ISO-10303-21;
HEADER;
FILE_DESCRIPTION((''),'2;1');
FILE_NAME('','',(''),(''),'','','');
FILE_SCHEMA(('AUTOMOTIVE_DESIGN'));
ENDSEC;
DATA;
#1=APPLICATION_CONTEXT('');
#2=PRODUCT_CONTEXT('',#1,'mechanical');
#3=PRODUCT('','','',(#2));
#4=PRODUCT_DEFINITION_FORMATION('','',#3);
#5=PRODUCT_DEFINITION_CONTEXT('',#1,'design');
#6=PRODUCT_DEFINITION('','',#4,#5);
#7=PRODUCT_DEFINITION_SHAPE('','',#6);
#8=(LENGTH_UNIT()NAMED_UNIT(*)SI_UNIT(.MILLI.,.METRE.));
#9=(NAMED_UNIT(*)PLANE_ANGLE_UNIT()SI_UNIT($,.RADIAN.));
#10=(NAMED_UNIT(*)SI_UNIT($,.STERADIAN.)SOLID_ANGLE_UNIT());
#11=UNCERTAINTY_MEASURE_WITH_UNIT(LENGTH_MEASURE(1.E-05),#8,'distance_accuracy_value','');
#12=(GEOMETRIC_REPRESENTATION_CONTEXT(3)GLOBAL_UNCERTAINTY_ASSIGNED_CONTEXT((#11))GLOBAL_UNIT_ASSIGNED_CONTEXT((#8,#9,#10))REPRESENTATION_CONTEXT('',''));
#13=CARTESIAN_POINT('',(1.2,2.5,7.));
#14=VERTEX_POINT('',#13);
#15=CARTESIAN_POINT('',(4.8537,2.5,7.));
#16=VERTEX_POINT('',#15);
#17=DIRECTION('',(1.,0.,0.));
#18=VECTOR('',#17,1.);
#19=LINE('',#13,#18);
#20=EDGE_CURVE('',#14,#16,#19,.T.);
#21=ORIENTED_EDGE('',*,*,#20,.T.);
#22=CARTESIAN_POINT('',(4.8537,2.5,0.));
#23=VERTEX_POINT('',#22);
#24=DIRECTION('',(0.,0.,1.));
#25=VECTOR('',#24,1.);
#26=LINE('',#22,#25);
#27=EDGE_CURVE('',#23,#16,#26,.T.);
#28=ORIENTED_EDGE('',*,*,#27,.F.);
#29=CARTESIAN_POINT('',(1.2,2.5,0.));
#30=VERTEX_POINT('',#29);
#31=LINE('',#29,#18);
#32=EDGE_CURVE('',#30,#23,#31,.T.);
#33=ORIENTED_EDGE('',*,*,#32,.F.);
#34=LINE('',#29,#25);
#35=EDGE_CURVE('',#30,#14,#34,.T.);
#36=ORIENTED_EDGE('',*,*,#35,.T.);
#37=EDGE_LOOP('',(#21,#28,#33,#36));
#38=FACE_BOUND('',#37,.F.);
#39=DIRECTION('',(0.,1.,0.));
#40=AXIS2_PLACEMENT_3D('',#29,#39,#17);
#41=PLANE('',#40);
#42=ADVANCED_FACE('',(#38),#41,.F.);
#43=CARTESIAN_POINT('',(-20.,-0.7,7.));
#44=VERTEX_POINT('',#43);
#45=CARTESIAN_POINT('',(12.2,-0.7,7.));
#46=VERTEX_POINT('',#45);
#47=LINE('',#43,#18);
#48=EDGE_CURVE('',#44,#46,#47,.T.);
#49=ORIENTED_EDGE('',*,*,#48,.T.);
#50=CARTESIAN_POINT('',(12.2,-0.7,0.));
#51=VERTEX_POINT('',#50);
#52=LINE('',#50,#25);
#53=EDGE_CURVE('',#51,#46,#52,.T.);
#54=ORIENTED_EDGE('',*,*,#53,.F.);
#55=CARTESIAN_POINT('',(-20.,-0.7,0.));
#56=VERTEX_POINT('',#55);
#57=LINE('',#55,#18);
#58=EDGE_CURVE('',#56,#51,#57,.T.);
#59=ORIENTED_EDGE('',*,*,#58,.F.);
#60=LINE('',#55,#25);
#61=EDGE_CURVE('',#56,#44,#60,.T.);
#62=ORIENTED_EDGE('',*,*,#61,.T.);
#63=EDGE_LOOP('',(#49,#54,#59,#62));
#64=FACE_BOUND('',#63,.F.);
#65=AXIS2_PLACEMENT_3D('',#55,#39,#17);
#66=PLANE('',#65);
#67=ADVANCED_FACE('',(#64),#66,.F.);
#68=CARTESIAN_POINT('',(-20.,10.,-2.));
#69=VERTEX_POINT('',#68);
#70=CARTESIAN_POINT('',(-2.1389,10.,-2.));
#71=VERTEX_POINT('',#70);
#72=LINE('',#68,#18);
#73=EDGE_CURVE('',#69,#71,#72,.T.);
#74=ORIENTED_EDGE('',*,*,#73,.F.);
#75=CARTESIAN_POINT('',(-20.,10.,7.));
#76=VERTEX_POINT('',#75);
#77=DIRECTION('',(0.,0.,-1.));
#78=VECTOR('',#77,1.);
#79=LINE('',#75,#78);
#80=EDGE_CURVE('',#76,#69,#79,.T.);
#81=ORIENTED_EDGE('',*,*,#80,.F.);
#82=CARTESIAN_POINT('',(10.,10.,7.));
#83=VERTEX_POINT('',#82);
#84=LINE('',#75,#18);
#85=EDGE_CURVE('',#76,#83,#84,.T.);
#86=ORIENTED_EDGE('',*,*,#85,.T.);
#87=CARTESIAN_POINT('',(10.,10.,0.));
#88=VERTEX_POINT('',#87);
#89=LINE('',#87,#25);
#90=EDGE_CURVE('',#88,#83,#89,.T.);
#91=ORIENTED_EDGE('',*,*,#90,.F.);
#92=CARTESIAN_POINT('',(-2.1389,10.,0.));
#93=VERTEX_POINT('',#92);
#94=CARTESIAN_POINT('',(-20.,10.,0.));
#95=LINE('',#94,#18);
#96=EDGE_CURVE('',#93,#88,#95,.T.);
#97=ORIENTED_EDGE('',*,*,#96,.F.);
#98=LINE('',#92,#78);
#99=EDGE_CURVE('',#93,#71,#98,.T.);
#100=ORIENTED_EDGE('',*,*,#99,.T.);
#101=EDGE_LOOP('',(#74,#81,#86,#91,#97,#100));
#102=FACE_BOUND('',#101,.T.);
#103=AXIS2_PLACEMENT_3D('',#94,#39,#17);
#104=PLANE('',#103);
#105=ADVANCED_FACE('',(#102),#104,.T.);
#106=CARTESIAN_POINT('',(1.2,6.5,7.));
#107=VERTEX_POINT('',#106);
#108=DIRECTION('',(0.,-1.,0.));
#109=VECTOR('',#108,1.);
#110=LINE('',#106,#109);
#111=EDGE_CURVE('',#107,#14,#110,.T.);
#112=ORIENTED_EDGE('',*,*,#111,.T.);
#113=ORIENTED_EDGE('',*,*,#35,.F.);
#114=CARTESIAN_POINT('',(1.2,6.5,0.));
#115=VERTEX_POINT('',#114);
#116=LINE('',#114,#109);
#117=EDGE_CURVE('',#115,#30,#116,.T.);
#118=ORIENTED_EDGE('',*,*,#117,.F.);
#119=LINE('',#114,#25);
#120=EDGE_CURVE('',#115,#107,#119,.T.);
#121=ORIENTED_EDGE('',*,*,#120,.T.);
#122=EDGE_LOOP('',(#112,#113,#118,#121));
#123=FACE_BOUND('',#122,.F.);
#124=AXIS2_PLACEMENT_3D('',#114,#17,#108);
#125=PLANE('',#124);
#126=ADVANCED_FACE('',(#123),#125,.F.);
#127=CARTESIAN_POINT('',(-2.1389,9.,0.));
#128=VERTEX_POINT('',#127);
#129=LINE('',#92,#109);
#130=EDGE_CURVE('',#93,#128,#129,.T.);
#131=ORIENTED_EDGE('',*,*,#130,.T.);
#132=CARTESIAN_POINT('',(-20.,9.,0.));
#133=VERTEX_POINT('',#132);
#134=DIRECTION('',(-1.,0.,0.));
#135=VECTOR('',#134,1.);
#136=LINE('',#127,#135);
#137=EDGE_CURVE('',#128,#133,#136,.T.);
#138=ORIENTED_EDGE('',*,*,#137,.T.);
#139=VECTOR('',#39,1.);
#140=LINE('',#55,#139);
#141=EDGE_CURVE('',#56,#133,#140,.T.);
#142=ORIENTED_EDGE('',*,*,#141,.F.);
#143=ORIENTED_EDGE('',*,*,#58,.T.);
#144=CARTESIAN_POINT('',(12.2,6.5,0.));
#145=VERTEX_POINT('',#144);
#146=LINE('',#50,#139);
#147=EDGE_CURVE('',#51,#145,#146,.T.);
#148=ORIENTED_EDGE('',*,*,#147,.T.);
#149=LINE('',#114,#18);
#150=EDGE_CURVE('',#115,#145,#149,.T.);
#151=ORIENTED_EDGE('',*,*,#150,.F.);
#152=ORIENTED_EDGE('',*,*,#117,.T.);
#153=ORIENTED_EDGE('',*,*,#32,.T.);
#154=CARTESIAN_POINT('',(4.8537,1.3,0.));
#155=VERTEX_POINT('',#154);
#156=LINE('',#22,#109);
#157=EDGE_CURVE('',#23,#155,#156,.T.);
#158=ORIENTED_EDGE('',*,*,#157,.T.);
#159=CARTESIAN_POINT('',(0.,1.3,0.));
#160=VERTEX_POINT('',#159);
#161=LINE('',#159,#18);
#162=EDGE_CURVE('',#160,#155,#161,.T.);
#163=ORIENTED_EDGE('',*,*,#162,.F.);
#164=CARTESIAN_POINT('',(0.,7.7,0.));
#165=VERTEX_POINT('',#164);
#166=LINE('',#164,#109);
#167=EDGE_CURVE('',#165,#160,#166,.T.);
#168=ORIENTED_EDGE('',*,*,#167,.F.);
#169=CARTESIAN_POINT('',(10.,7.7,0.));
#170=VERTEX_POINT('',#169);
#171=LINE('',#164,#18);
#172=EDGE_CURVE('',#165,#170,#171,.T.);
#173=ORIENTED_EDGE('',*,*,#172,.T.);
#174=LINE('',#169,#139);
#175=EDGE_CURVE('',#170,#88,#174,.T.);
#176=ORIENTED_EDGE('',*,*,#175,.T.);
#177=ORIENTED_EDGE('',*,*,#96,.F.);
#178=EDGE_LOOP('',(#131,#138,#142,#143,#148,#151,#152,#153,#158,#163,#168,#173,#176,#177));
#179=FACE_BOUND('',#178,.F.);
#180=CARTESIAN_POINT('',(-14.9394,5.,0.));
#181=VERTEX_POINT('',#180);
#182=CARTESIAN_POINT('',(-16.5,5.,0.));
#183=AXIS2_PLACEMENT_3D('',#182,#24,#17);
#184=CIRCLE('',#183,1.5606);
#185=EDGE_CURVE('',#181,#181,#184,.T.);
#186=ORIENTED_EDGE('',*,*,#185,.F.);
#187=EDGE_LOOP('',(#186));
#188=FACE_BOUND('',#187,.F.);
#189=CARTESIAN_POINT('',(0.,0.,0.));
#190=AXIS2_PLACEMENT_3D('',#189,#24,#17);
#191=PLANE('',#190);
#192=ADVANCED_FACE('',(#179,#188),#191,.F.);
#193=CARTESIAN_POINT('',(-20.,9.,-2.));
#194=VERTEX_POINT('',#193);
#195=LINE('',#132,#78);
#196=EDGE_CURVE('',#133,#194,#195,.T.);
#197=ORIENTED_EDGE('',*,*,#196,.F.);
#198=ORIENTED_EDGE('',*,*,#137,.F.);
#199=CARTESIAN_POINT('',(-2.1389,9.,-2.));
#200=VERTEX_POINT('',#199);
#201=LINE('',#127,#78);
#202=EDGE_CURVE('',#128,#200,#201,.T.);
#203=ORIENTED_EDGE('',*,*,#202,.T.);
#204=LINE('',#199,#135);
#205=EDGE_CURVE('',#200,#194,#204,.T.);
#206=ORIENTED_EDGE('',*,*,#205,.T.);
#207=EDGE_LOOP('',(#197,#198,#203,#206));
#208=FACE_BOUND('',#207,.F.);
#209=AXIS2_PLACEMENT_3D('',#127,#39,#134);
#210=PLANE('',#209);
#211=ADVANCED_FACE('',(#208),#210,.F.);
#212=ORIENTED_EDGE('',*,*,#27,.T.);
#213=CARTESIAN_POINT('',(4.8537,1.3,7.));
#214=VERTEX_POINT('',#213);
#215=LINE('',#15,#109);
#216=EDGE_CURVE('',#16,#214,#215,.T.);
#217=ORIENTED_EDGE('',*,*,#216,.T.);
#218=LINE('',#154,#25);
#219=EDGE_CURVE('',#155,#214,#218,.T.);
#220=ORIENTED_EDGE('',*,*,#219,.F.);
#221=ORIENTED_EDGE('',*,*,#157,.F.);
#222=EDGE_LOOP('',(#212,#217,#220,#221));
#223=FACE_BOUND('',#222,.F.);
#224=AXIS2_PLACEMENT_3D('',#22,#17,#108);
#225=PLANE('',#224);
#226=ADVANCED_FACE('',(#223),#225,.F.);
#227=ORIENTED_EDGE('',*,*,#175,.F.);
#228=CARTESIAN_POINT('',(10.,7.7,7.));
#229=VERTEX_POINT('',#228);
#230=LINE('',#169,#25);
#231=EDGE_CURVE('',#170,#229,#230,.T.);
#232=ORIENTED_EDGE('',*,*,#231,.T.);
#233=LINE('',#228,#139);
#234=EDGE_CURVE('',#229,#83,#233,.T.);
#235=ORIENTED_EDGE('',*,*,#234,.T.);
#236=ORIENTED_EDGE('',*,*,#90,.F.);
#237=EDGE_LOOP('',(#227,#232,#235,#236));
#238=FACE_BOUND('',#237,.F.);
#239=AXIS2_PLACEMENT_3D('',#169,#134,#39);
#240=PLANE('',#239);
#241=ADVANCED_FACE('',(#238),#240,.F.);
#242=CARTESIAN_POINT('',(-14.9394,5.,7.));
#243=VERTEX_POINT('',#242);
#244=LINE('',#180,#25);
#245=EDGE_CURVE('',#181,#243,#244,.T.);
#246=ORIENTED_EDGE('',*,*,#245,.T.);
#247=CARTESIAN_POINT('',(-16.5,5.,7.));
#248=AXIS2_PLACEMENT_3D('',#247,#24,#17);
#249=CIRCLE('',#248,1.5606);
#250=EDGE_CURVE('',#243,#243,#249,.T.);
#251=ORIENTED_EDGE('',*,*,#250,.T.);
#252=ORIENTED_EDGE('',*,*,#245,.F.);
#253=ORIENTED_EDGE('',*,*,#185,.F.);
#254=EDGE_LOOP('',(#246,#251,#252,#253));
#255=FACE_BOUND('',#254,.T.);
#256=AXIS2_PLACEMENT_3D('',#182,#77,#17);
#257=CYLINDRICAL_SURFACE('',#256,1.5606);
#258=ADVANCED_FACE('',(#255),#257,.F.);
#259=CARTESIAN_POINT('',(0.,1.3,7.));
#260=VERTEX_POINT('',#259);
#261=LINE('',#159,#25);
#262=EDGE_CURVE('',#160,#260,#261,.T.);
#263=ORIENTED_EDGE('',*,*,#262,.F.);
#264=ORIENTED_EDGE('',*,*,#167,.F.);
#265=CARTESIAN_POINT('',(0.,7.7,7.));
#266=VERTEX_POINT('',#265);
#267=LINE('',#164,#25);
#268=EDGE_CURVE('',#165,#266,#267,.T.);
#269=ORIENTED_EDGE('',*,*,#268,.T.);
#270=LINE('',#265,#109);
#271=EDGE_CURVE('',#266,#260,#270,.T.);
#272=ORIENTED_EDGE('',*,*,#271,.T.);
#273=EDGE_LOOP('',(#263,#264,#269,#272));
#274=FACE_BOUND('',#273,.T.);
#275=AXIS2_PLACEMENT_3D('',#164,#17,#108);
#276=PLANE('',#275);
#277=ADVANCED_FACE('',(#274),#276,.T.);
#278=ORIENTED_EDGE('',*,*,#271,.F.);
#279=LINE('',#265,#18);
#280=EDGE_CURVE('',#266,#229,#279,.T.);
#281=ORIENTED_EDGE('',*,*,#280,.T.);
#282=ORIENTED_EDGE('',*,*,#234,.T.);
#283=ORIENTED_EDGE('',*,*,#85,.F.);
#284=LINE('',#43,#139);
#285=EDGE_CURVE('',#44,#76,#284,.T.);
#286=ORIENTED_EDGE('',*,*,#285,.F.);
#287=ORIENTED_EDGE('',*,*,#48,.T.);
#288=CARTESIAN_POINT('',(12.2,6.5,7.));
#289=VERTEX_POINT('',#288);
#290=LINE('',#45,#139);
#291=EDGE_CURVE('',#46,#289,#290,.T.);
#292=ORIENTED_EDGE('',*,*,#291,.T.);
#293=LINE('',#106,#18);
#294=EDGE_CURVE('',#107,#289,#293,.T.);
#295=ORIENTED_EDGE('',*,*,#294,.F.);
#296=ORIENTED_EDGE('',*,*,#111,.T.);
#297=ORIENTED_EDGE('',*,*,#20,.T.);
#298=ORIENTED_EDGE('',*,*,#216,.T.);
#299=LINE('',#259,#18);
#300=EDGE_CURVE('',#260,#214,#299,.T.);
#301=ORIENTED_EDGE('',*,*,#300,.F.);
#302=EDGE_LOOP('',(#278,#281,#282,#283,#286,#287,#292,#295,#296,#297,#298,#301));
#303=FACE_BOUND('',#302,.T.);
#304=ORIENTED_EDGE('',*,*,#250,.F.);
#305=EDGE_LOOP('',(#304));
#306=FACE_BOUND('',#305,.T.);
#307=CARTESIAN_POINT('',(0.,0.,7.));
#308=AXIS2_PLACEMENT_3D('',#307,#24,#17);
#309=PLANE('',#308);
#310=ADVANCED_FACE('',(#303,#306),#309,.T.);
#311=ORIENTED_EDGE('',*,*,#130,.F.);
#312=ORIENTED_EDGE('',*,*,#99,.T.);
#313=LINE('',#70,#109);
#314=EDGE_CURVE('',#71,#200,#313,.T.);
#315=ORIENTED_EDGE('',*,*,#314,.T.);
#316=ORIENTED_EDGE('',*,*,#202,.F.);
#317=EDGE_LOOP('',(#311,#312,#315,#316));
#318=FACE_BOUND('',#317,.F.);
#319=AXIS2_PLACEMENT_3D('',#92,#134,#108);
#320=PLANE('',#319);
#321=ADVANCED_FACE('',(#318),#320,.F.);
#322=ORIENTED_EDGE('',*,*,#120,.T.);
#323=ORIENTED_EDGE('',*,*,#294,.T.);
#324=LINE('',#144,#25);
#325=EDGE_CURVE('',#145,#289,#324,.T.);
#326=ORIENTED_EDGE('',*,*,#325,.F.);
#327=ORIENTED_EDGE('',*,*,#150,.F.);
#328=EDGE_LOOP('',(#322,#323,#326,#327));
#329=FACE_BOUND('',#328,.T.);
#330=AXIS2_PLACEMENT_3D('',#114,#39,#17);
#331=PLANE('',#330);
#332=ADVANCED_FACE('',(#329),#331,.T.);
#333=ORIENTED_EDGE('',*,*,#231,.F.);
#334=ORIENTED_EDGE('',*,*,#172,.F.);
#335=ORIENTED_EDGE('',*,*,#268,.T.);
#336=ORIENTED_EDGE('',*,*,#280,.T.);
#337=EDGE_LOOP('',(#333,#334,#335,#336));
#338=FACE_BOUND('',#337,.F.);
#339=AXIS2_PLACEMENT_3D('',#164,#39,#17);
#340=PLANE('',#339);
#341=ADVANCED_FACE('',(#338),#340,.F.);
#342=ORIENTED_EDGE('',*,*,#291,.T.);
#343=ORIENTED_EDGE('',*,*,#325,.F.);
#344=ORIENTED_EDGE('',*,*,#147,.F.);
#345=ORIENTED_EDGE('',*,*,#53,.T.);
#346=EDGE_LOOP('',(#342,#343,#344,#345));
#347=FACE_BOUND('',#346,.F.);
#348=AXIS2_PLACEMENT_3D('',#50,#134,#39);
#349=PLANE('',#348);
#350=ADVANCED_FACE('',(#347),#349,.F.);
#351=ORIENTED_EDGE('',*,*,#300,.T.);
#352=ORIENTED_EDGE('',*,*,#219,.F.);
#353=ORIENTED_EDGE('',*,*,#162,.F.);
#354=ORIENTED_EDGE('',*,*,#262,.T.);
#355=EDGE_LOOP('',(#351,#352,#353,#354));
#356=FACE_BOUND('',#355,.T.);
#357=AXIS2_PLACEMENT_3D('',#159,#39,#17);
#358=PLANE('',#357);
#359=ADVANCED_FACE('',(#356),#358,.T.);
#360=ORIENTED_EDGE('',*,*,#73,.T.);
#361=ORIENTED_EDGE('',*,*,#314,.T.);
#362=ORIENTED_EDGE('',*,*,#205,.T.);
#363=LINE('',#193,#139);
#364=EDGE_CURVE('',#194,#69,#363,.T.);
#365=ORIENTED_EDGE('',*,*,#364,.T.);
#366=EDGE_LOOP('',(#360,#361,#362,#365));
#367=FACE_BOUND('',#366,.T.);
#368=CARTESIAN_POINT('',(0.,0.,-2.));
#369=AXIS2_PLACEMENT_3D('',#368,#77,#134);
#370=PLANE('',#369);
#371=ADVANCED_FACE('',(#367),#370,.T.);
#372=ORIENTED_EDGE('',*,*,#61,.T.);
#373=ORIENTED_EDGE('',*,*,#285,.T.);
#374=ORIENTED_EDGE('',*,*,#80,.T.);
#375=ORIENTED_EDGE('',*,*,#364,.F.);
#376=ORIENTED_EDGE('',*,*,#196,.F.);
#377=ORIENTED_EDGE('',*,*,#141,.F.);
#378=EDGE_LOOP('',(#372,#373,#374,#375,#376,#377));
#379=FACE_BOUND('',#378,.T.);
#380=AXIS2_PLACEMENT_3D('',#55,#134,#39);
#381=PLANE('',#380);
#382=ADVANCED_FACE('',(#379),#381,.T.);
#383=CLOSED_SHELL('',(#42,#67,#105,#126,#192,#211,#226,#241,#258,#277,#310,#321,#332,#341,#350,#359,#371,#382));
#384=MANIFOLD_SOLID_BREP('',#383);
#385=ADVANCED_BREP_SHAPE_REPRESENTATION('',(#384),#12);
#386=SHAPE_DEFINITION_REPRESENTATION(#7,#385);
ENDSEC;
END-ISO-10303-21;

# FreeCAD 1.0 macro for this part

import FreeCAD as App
import Part
import Sketcher
Q = App.Units.Quantity


def add_polygon(sketch, points):
    """Adds a closed chain of lines whose ends are joined by coincident constraints."""
    first, n = sketch.GeometryCount, len(points)
    for a, b in zip(points, points[1:] + points[:1]):
        sketch.addGeometry(Part.LineSegment(App.Vector(*a, 0), App.Vector(*b, 0)), False)
    for i in range(n):
        sketch.addConstraint(Sketcher.Constraint("Coincident", first + i, 2, first + (i + 1) % n, 1))

doc = App.newDocument("Part")
params = doc.addObject("Spreadsheet::Sheet", "Params")
for row, (alias, value) in enumerate([
    ("sketch1_width", "11 mm"),
    ("sketch1_height", "4 mm"),
    ("sketch1_height2", "1.2 mm"),
    ("sketch1_width2", "10 mm"),
    ("sketch1_width3", "30 mm"),
    ("pad1_length", "7 mm"),
    ("sketch2_height", "1 mm"),
    ("pad2_length", "2 mm"),
], start=1):
    params.set(f"A{row}", alias)
    params.set(f"B{row}", "=" + value)
    params.setAlias(f"B{row}", alias)

body = doc.addObject("PartDesign::Body", "Body")

# Sketch on XY plane
sketch1 = body.newObject("Sketcher::SketchObject", "Sketch")
sketch1.AttachmentSupport = (doc.getObject("XY_Plane"), [""])
sketch1.MapMode = "FlatFace"
add_polygon(sketch1, [(-20, 10), (-20, -0.7), (12.2, -0.7), (12.2, 6.5), (1.2, 6.5), (1.2, 2.5), (4.8537, 2.5), (4.8537, 1.3), (0, 1.3), (0, 7.7), (10, 7.7), (10, 10)])  # lines 0-11
sketch1.addGeometry(Part.Circle(App.Vector(-16.5, 5, 0), App.Vector(0, 0, 1), 1.5606), False)  # 12
sketch1.addConstraint([
    Sketcher.Constraint("Vertical", 0),
    Sketcher.Constraint("Horizontal", 1),
    Sketcher.Constraint("Vertical", 2),
    Sketcher.Constraint("Horizontal", 3),
    Sketcher.Constraint("Vertical", 4),
    Sketcher.Constraint("Horizontal", 5),
    Sketcher.Constraint("Vertical", 6),
    Sketcher.Constraint("Horizontal", 7),
    Sketcher.Constraint("Vertical", 8),
    Sketcher.Constraint("Horizontal", 9),
    Sketcher.Constraint("Vertical", 10),
    Sketcher.Constraint("Horizontal", 11),
    Sketcher.Constraint("PointOnObject", 7, 2, -2),
    Sketcher.Constraint("DistanceX", 3, 2, 3, 1, Q("11 mm")),
    Sketcher.Constraint("DistanceY", 4, 2, 4, 1, Q("4 mm")),
    Sketcher.Constraint("DistanceY", 6, 2, 6, 1, Q("1.2 mm")),
    Sketcher.Constraint("DistanceY", -1, 1, 12, 3, Q("5 mm")),
    Sketcher.Constraint("DistanceY", 1, 2, 6, 2, Q("2 mm")),
    Sketcher.Constraint("DistanceY", 12, 3, 11, 2, Q("5 mm")),
    Sketcher.Constraint("DistanceX", 12, 3, -1, 1, Q("16.5 mm")),
    Sketcher.Constraint("DistanceX", -1, 1, 3, 2, Q("1.2 mm")),
    Sketcher.Constraint("DistanceY", 3, 2, 8, 2, Q("1.2 mm")),
    Sketcher.Constraint("DistanceX", 9, 1, 9, 2, Q("10 mm")),
    Sketcher.Constraint("DistanceX", 11, 2, 11, 1, Q("30 mm")),
    Sketcher.Constraint("DistanceY", 0, 2, 0, 1, Q("10.7 mm")),
    Sketcher.Constraint("Diameter", 12, Q("3.1212 mm")),
    Sketcher.Constraint("DistanceX", 5, 1, 5, 2, Q("3.6537 mm")),
])
sketch1.setExpression("Constraints[25]", "Params.sketch1_width")
sketch1.setExpression("Constraints[26]", "Params.sketch1_height")
sketch1.setExpression("Constraints[27]", "Params.sketch1_height2")
sketch1.setExpression("Constraints[34]", "Params.sketch1_width2")
sketch1.setExpression("Constraints[35]", "Params.sketch1_width3")
pad1 = body.newObject("PartDesign::Pad", "Pad")
pad1.Profile = sketch1
pad1.setExpression("Length", "Params.pad1_length")

# Sketch on XY plane
sketch2 = body.newObject("Sketcher::SketchObject", "Sketch001")
sketch2.AttachmentSupport = (doc.getObject("XY_Plane"), [""])
sketch2.MapMode = "FlatFace"
add_polygon(sketch2, [(-20, 9), (-20, 10), (-2.1389, 10), (-2.1389, 9)])  # lines 0-3
sketch2.addConstraint([
    Sketcher.Constraint("Vertical", 0),
    Sketcher.Constraint("Horizontal", 1),
    Sketcher.Constraint("Vertical", 2),
    Sketcher.Constraint("Horizontal", 3),
    Sketcher.Constraint("DistanceY", 0, 1, 0, 2, Q("1 mm")),
    Sketcher.Constraint("DistanceX", 0, 2, -1, 1, Q("20 mm")),
    Sketcher.Constraint("DistanceY", -1, 1, 0, 2, Q("10 mm")),
    Sketcher.Constraint("DistanceX", 1, 1, 1, 2, Q("17.861 mm")),
])
sketch2.setExpression("Constraints[8]", "Params.sketch2_height")
pad2 = body.newObject("PartDesign::Pad", "Pad001")
pad2.Profile = sketch2
pad2.setExpression("Length", "Params.pad2_length")
pad2.Reversed = True

doc.recompute()
